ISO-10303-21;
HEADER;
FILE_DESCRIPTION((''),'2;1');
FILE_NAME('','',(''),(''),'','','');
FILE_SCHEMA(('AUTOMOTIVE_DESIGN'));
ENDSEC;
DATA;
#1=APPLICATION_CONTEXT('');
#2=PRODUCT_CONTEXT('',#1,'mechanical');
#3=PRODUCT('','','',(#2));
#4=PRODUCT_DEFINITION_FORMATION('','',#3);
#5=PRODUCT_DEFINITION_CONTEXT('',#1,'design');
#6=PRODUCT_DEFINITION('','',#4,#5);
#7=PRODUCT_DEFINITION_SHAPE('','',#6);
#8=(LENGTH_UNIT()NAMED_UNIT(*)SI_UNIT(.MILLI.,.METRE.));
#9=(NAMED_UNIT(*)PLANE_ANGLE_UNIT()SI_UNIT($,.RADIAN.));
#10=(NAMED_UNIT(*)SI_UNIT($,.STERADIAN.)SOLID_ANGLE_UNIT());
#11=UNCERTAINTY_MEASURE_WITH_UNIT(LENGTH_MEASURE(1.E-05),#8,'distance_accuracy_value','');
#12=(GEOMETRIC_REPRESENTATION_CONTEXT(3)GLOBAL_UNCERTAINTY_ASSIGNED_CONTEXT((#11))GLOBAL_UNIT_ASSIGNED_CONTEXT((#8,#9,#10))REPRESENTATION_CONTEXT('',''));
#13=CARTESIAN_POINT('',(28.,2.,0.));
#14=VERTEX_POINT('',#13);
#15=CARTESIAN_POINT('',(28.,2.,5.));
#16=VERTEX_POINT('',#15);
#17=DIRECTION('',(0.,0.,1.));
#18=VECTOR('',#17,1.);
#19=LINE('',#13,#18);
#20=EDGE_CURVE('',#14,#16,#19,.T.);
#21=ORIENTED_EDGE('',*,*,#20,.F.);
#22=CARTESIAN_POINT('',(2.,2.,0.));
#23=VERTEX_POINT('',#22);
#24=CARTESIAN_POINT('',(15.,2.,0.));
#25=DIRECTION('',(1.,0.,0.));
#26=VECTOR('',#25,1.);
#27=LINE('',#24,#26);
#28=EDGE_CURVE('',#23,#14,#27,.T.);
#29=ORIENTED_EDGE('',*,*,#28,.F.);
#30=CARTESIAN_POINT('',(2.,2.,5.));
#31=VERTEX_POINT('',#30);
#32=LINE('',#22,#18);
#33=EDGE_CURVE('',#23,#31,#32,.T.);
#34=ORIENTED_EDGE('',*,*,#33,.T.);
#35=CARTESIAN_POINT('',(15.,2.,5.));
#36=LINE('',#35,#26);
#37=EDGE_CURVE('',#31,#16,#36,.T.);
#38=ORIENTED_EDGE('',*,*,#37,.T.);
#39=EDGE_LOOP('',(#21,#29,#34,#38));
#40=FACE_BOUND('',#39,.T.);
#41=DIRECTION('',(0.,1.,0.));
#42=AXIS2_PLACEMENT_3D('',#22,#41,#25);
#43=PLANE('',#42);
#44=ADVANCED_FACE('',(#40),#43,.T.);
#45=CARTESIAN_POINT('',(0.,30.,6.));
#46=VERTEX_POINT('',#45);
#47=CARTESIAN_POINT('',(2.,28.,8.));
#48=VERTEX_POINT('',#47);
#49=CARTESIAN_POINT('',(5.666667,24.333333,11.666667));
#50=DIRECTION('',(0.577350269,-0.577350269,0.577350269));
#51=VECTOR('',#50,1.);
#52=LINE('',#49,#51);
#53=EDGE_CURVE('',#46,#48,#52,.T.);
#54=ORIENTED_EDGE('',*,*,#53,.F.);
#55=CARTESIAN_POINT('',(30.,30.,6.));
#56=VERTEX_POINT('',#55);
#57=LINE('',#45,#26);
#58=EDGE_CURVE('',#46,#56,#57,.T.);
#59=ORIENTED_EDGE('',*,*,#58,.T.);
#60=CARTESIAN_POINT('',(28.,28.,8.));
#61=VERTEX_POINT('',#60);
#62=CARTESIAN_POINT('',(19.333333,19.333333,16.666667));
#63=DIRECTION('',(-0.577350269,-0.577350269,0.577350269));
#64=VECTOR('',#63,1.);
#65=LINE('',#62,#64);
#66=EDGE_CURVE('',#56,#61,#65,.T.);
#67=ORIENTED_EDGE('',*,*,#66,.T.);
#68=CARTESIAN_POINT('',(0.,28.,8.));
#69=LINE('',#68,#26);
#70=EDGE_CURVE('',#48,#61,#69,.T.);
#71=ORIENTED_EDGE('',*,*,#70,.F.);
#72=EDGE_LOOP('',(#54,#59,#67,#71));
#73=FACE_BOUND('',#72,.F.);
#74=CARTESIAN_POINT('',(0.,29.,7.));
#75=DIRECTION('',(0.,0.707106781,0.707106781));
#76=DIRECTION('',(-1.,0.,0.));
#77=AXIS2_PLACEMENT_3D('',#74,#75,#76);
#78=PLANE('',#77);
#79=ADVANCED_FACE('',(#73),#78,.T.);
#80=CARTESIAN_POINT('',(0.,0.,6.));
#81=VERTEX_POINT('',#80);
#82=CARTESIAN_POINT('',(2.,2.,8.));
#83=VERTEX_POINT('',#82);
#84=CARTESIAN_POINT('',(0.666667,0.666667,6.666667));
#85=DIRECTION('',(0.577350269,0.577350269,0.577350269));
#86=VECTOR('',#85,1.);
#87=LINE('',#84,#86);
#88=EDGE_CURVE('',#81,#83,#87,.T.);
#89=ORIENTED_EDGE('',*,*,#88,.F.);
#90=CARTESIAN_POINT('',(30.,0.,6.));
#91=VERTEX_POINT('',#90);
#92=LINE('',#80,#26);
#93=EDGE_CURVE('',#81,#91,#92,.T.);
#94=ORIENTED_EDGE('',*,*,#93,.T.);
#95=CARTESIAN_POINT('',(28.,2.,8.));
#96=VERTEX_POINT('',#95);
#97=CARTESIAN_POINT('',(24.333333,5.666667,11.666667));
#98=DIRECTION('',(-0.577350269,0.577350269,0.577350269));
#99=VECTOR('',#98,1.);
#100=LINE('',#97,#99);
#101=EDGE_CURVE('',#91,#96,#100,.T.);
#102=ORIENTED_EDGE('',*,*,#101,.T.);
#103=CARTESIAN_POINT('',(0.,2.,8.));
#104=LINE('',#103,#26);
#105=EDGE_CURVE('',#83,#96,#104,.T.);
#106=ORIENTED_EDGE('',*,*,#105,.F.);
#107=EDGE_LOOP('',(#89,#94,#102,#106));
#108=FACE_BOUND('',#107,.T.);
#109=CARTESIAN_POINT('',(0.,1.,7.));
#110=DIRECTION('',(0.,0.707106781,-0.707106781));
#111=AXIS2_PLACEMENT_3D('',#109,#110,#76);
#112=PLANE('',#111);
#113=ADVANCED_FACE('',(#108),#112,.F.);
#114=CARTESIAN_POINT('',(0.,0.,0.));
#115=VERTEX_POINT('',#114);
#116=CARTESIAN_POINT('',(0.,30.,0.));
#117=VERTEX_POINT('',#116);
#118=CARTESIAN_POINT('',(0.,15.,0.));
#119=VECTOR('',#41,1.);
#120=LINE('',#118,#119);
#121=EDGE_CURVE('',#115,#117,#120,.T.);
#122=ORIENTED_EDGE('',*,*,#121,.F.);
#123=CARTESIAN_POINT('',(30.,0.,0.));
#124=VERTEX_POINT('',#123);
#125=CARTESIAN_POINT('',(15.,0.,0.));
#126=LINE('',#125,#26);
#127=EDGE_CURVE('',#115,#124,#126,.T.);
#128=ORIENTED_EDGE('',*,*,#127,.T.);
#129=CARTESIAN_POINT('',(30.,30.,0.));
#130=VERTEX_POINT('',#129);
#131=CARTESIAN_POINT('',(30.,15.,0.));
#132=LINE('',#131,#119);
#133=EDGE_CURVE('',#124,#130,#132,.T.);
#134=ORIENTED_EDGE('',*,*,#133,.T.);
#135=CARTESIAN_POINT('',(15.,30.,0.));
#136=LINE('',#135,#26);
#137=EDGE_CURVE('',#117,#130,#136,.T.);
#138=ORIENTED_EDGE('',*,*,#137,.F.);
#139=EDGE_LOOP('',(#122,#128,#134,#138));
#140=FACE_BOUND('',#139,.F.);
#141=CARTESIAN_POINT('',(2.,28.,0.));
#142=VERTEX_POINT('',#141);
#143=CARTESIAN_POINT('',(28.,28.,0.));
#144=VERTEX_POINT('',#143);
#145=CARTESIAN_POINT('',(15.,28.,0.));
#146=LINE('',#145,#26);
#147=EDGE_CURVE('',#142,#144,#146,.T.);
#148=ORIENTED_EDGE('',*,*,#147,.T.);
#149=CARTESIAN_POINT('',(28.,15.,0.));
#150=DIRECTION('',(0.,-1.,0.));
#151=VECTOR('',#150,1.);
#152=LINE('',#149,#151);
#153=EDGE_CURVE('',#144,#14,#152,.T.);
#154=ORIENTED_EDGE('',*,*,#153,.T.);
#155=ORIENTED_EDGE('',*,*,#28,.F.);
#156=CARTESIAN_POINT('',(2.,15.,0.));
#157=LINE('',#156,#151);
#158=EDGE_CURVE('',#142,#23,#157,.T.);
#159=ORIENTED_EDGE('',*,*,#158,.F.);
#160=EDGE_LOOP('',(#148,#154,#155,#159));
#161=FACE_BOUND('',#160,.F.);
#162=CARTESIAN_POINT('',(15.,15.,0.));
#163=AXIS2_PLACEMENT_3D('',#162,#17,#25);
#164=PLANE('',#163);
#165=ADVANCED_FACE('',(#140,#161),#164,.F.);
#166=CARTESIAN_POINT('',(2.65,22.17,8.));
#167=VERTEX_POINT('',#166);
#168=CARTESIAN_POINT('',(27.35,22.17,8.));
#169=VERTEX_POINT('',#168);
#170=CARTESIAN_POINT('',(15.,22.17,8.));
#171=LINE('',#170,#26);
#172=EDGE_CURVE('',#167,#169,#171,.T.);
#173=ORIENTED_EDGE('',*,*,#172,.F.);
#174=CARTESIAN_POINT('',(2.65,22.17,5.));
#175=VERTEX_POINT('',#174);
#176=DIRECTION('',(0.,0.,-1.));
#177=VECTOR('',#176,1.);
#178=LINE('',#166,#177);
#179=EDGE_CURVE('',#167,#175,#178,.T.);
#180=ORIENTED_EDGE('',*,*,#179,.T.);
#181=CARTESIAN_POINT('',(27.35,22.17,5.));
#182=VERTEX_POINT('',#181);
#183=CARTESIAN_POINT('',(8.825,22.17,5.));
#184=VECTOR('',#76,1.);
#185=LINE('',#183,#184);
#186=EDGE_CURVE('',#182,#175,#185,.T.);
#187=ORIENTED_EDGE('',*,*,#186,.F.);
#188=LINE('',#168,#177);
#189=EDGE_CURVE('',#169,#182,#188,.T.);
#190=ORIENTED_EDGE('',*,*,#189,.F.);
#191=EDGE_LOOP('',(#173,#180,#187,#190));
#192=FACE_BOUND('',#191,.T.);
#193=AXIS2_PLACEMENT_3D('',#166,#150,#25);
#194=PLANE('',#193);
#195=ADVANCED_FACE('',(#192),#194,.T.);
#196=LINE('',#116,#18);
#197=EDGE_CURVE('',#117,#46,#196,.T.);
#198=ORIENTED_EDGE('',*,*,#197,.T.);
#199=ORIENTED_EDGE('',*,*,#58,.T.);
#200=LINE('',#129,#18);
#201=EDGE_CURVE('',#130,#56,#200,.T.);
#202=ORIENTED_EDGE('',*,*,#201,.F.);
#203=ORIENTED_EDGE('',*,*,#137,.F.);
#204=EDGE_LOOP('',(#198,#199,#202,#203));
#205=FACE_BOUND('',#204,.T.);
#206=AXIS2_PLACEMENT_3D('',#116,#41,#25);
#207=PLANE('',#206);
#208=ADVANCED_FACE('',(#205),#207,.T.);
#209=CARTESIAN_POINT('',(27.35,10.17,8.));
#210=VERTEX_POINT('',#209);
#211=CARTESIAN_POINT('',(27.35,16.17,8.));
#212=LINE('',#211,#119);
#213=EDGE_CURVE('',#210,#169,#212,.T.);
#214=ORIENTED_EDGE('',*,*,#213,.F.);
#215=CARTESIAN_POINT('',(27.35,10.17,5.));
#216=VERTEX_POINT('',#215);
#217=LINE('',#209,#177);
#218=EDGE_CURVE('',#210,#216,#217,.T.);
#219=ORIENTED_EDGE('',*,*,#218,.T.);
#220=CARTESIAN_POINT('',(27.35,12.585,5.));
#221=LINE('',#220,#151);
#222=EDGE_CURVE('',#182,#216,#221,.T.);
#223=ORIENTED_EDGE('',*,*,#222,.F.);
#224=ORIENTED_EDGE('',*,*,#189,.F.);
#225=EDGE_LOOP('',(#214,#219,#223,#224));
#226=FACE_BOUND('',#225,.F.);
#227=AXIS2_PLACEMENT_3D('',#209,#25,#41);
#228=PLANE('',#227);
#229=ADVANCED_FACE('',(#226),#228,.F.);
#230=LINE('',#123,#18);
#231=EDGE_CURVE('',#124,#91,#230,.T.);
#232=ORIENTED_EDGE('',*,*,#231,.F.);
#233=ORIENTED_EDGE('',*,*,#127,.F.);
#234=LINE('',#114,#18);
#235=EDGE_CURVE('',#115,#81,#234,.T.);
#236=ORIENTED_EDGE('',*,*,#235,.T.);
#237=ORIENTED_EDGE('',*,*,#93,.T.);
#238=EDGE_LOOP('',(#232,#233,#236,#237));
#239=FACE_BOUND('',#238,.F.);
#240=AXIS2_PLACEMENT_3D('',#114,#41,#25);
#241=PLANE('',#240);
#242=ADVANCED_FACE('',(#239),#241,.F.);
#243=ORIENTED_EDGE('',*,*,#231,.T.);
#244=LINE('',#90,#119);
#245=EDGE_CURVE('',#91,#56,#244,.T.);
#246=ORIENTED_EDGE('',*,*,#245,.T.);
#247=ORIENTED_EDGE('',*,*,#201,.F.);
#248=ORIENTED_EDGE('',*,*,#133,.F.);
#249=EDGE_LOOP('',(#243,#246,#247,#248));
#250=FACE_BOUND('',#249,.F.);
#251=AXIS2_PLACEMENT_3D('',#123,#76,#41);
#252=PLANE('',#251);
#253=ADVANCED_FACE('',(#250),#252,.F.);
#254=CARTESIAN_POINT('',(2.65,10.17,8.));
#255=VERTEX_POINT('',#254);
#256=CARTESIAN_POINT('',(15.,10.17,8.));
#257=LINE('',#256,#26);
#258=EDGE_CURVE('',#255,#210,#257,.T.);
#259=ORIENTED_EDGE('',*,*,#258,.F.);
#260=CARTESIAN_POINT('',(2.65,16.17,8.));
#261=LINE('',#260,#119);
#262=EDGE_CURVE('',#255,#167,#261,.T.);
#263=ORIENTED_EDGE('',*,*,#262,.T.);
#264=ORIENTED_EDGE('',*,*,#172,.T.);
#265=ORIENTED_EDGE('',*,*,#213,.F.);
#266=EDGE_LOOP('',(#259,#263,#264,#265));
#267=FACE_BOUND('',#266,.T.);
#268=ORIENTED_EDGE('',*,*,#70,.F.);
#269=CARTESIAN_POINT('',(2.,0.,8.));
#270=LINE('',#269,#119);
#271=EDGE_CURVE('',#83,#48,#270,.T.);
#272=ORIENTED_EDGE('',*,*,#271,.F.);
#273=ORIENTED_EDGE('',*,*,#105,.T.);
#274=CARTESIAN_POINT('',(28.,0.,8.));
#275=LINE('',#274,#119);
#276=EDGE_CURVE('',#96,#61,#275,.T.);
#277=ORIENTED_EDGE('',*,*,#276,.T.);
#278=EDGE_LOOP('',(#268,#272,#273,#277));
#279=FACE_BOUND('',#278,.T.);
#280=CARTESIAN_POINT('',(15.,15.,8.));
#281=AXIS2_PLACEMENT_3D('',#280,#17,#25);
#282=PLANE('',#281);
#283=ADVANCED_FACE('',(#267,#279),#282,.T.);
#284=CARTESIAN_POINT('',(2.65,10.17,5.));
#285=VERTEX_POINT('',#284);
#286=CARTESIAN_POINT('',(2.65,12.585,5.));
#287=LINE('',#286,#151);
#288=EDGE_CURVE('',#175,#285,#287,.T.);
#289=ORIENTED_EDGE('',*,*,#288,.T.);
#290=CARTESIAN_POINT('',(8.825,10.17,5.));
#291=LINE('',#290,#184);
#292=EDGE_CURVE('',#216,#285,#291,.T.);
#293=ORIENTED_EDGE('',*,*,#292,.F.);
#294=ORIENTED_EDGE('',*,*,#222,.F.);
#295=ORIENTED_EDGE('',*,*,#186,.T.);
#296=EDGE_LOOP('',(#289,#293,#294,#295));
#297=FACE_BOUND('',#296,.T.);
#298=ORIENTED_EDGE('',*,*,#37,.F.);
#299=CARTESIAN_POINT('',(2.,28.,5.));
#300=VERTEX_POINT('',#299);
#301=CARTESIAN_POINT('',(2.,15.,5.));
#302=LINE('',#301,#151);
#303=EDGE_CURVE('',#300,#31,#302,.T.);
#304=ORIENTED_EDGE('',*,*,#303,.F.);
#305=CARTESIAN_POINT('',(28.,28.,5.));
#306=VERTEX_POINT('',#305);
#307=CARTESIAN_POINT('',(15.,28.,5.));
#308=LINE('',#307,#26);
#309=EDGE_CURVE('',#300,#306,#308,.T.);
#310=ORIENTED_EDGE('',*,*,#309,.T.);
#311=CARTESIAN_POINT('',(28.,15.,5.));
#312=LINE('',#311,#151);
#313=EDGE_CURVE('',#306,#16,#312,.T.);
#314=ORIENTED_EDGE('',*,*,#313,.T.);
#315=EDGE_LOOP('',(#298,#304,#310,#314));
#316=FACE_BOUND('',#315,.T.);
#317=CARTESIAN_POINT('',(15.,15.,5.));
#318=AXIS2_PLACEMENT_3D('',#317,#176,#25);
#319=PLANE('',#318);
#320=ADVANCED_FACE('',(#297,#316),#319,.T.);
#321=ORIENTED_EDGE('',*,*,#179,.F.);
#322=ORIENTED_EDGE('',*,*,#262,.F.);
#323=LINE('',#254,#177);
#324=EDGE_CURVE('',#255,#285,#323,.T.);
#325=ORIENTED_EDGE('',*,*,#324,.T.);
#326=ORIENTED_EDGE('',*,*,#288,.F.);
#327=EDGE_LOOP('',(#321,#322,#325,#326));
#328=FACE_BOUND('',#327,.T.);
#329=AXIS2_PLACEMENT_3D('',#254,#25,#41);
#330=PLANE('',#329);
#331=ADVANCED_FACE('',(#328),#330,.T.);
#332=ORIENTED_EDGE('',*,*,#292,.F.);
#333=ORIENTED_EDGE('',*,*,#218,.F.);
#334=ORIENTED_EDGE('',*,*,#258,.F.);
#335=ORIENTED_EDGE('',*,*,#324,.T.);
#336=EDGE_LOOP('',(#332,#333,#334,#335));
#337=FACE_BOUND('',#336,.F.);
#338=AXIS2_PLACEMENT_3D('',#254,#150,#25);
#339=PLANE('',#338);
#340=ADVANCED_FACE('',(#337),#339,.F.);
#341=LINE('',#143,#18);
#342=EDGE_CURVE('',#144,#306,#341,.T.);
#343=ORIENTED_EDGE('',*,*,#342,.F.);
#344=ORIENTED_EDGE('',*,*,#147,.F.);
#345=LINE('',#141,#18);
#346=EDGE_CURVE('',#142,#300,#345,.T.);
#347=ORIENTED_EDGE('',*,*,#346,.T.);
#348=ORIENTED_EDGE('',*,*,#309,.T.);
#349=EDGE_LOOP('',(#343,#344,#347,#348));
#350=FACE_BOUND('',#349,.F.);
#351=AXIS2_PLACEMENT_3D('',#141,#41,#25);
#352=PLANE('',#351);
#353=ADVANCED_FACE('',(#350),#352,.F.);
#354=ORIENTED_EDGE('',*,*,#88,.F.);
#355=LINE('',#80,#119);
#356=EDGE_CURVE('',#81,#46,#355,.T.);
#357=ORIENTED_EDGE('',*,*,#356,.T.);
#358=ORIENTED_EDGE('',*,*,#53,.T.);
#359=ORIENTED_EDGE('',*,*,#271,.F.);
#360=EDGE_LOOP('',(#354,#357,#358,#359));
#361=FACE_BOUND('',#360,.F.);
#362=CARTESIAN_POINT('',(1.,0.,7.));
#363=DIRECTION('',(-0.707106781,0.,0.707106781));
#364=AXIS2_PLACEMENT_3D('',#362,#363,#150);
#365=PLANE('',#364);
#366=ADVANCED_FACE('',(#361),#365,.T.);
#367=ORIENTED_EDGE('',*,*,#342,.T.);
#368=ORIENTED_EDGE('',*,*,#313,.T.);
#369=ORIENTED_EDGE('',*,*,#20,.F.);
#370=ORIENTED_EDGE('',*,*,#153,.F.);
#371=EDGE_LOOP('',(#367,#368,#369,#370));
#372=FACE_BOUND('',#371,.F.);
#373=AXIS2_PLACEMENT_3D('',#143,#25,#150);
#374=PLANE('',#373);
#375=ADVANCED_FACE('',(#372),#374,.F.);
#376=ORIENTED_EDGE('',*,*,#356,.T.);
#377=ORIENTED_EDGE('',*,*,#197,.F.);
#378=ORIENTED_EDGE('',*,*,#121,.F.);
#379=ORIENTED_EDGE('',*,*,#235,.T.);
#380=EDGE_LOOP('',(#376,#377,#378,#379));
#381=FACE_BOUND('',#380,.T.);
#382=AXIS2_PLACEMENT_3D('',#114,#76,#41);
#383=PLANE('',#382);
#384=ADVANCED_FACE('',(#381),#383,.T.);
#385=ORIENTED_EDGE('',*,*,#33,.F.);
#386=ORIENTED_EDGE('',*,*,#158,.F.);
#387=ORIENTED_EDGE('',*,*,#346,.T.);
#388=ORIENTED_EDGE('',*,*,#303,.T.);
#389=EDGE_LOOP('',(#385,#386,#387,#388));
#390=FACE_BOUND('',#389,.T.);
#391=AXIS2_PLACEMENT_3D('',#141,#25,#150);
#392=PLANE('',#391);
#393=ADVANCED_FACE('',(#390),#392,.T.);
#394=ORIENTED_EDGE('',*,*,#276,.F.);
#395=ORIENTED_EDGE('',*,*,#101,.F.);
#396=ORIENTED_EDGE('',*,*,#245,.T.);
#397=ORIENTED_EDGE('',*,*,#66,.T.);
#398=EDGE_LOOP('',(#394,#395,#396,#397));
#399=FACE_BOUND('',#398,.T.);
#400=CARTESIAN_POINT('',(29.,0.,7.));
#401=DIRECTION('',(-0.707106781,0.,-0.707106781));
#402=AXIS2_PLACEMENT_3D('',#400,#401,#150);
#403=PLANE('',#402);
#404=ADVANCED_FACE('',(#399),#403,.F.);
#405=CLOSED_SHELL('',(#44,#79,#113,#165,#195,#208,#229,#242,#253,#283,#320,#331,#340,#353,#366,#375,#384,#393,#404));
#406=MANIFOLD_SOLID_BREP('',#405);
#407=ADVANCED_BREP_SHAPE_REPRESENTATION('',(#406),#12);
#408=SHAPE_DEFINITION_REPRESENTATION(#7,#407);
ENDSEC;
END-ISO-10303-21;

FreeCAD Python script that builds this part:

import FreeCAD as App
import Part
import Sketcher
Q = App.Units.Quantity


def edges_at(feature, points):
    """Names of the edges that pass closest to the given points."""
    edges = feature.Shape.Edges
    near = lambda p: min(range(len(edges)), key=lambda i: edges[i].distToShape(Part.Vertex(*p))[0])
    return sorted({f"Edge{near(p) + 1}" for p in points})

doc = App.newDocument("Part")
body = doc.addObject("PartDesign::Body", "Body")

# Sketch on XY plane
sketch1 = doc.addObject("Sketcher::SketchObject", "Sketch")
body.addObject(sketch1)
sketch1.AttachmentSupport = (doc.XY_Plane, [""])
sketch1.MapMode = "FlatFace"
sketch1.addGeometry(Part.LineSegment(App.Vector(0, 30, 0), App.Vector(0, 0, 0)), False)
sketch1.addGeometry(Part.LineSegment(App.Vector(0, 0, 0), App.Vector(30, 0, 0)), False)
sketch1.addGeometry(Part.LineSegment(App.Vector(30, 0, 0), App.Vector(30, 30, 0)), False)
sketch1.addGeometry(Part.LineSegment(App.Vector(30, 30, 0), App.Vector(0, 30, 0)), False)
sketch1.addConstraint(Sketcher.Constraint("Coincident", 0, 2, 1, 1))
sketch1.addConstraint(Sketcher.Constraint("Coincident", 1, 2, 2, 1))
sketch1.addConstraint(Sketcher.Constraint("Coincident", 2, 2, 3, 1))
sketch1.addConstraint(Sketcher.Constraint("Coincident", 3, 2, 0, 1))
sketch1.addConstraint(Sketcher.Constraint("Vertical", 0))
sketch1.addConstraint(Sketcher.Constraint("Horizontal", 1))
sketch1.addConstraint(Sketcher.Constraint("Vertical", 2))
sketch1.addConstraint(Sketcher.Constraint("Horizontal", 3))
sketch1.addConstraint(Sketcher.Constraint("Coincident", 0, 2, -1, 1))
sketch1.addConstraint(Sketcher.Constraint("Equal", 3, 0))
sketch1.addConstraint(Sketcher.Constraint("DistanceX", 1, 1, 1, 2, Q("30 mm")))
pad1 = doc.addObject("PartDesign::Pad", "Pad")
body.addObject(pad1)
pad1.Profile = sketch1
pad1.Length = 8
doc.recompute()

chamfer = doc.addObject("PartDesign::Chamfer", "Chamfer")
body.addObject(chamfer)
chamfer.Base = (pad1, edges_at(pad1, [
    (15, 0, 8),
    (0, 15, 8),
    (15, 30, 8),
    (30, 15, 8),
]))
chamfer.Size = 2

# Sketch on XY plane
sketch2 = doc.addObject("Sketcher::SketchObject", "Sketch001")
body.addObject(sketch2)
sketch2.AttachmentSupport = (doc.XY_Plane, [""])
sketch2.MapMode = "FlatFace"
sketch2.addGeometry(Part.LineSegment(App.Vector(2, 2, 0), App.Vector(2, 28, 0)), False)
sketch2.addGeometry(Part.LineSegment(App.Vector(2, 28, 0), App.Vector(28, 28, 0)), False)
sketch2.addGeometry(Part.LineSegment(App.Vector(28, 28, 0), App.Vector(28, 2, 0)), False)
sketch2.addGeometry(Part.LineSegment(App.Vector(28, 2, 0), App.Vector(2, 2, 0)), False)
sketch2.addConstraint(Sketcher.Constraint("Coincident", 0, 2, 1, 1))
sketch2.addConstraint(Sketcher.Constraint("Coincident", 1, 2, 2, 1))
sketch2.addConstraint(Sketcher.Constraint("Coincident", 2, 2, 3, 1))
sketch2.addConstraint(Sketcher.Constraint("Coincident", 3, 2, 0, 1))
sketch2.addConstraint(Sketcher.Constraint("Vertical", 0))
sketch2.addConstraint(Sketcher.Constraint("Horizontal", 1))
sketch2.addConstraint(Sketcher.Constraint("Vertical", 2))
sketch2.addConstraint(Sketcher.Constraint("Horizontal", 3))
sketch2.addConstraint(Sketcher.Constraint("Equal", 3, 0))
sketch2.addConstraint(Sketcher.Constraint("DistanceX", 1, 1, 1, 2, Q("26 mm")))
sketch2.addConstraint(Sketcher.Constraint("DistanceX", -1, 1, 0, 2, Q("2 mm")))
sketch2.addConstraint(Sketcher.Constraint("DistanceY", -1, 1, 0, 2, Q("28 mm")))
pocket1 = doc.addObject("PartDesign::Pocket", "Pocket")
body.addObject(pocket1)
pocket1.Profile = sketch2
pocket1.Length = 5
pocket1.Reversed = True

# Sketch on XY plane
sketch3 = doc.addObject("Sketcher::SketchObject", "Sketch002")
body.addObject(sketch3)
sketch3.AttachmentSupport = (doc.XY_Plane, [""])
sketch3.MapMode = "FlatFace"
sketch3.AttachmentOffset = App.Placement(App.Vector(0, 0, 8), App.Rotation())
sketch3.addGeometry(Part.LineSegment(App.Vector(3, 22, 0), App.Vector(3, 10, 0)), False)
sketch3.addGeometry(Part.LineSegment(App.Vector(3, 10, 0), App.Vector(27, 10, 0)), False)
sketch3.addGeometry(Part.LineSegment(App.Vector(27, 10, 0), App.Vector(27, 22, 0)), False)
sketch3.addGeometry(Part.LineSegment(App.Vector(27, 22, 0), App.Vector(3, 22, 0)), False)
sketch3.addConstraint(Sketcher.Constraint("Coincident", 0, 2, 1, 1))
sketch3.addConstraint(Sketcher.Constraint("Coincident", 1, 2, 2, 1))
sketch3.addConstraint(Sketcher.Constraint("Coincident", 2, 2, 3, 1))
sketch3.addConstraint(Sketcher.Constraint("Coincident", 3, 2, 0, 1))
sketch3.addConstraint(Sketcher.Constraint("Vertical", 0))
sketch3.addConstraint(Sketcher.Constraint("Horizontal", 1))
sketch3.addConstraint(Sketcher.Constraint("Vertical", 2))
sketch3.addConstraint(Sketcher.Constraint("Horizontal", 3))
sketch3.addConstraint(Sketcher.Constraint("DistanceY", 0, 2, 0, 1, Q("12 mm")))
sketch3.addConstraint(Sketcher.Constraint("DistanceX", 1, 1, 1, 2, Q("24.7 mm")))
sketch3.addConstraint(Sketcher.Constraint("DistanceX", -1, 1, 0, 2, Q("2.65 mm")))
sketch3.addConstraint(Sketcher.Constraint("DistanceY", -1, 1, 0, 2, Q("10.17 mm")))
pocket2 = doc.addObject("PartDesign::Pocket", "Pocket001")
body.addObject(pocket2)
pocket2.Profile = sketch3
pocket2.Length = 5

doc.recompute()
